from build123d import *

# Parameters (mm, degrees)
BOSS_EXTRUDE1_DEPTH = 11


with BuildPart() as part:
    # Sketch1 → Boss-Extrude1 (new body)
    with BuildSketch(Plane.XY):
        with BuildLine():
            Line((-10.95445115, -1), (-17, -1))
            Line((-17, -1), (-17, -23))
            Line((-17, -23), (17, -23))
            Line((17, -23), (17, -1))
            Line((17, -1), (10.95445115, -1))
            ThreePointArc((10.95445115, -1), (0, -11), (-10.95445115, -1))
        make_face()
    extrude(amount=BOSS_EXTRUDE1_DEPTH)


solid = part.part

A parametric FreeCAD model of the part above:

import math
import FreeCAD as App
import Part
import Sketcher
from FreeCAD import Vector

doc = App.newDocument("Part")
body = doc.addObject("PartDesign::Body", "Body")

# Sketch on XY plane
sketch1 = body.newObject("Sketcher::SketchObject", "Sketch")
sketch1.AttachmentSupport = (doc.getObject("XY_Plane"), [""])
sketch1.MapMode = "FlatFace"
sketch1.addGeometry(Part.LineSegment(Vector(-11, -1, 0), Vector(-17, -1, 0)), False)
sketch1.addGeometry(Part.LineSegment(Vector(-17, -1, 0), Vector(-17, -23, 0)), False)
sketch1.addGeometry(Part.LineSegment(Vector(-17, -23, 0), Vector(17, -23, 0)), False)
sketch1.addGeometry(Part.LineSegment(Vector(17, -23, 0), Vector(17, -1, 0)), False)
sketch1.addGeometry(Part.LineSegment(Vector(17, -1, 0), Vector(11, -1, 0)), False)
sketch1.addGeometry(Part.ArcOfCircle(Part.Circle(Vector(0, 0, 0), Vector(0, 0, 1), 11), math.radians(-175), math.radians(-5)), False)
sketch1.addConstraint(Sketcher.Constraint("Coincident", 0, 2, 1, 1))
sketch1.addConstraint(Sketcher.Constraint("Coincident", 1, 2, 2, 1))
sketch1.addConstraint(Sketcher.Constraint("Coincident", 2, 2, 3, 1))
sketch1.addConstraint(Sketcher.Constraint("Coincident", 3, 2, 4, 1))
sketch1.addConstraint(Sketcher.Constraint("Coincident", 4, 2, 5, 2))
sketch1.addConstraint(Sketcher.Constraint("Coincident", 5, 1, 0, 1))
sketch1.addConstraint(Sketcher.Constraint("Horizontal", 0))
sketch1.addConstraint(Sketcher.Constraint("Vertical", 1))
sketch1.addConstraint(Sketcher.Constraint("Horizontal", 2))
sketch1.addConstraint(Sketcher.Constraint("Vertical", 3))
sketch1.addConstraint(Sketcher.Constraint("Horizontal", 4))
sketch1.addConstraint(Sketcher.Constraint("Coincident", 5, 3, -1, 1))
sketch1.addConstraint(Sketcher.Constraint("Symmetric", 0, 2, 3, 2, -2))
sketch1.addConstraint(Sketcher.Constraint("Radius", 5, 11.0))
sketch1.addConstraint(Sketcher.Constraint("DistanceX", 2, 1, 2, 2, 34.0))
sketch1.addConstraint(Sketcher.Constraint("DistanceY", 1, 2, 1, 1, 22.0))
sketch1.addConstraint(Sketcher.Constraint("DistanceY", 0, 2, -1, 1, 1.0))
pad1 = body.newObject("PartDesign::Pad", "Pad")
pad1.Profile = sketch1
pad1.Length = 11

doc.recompute()
